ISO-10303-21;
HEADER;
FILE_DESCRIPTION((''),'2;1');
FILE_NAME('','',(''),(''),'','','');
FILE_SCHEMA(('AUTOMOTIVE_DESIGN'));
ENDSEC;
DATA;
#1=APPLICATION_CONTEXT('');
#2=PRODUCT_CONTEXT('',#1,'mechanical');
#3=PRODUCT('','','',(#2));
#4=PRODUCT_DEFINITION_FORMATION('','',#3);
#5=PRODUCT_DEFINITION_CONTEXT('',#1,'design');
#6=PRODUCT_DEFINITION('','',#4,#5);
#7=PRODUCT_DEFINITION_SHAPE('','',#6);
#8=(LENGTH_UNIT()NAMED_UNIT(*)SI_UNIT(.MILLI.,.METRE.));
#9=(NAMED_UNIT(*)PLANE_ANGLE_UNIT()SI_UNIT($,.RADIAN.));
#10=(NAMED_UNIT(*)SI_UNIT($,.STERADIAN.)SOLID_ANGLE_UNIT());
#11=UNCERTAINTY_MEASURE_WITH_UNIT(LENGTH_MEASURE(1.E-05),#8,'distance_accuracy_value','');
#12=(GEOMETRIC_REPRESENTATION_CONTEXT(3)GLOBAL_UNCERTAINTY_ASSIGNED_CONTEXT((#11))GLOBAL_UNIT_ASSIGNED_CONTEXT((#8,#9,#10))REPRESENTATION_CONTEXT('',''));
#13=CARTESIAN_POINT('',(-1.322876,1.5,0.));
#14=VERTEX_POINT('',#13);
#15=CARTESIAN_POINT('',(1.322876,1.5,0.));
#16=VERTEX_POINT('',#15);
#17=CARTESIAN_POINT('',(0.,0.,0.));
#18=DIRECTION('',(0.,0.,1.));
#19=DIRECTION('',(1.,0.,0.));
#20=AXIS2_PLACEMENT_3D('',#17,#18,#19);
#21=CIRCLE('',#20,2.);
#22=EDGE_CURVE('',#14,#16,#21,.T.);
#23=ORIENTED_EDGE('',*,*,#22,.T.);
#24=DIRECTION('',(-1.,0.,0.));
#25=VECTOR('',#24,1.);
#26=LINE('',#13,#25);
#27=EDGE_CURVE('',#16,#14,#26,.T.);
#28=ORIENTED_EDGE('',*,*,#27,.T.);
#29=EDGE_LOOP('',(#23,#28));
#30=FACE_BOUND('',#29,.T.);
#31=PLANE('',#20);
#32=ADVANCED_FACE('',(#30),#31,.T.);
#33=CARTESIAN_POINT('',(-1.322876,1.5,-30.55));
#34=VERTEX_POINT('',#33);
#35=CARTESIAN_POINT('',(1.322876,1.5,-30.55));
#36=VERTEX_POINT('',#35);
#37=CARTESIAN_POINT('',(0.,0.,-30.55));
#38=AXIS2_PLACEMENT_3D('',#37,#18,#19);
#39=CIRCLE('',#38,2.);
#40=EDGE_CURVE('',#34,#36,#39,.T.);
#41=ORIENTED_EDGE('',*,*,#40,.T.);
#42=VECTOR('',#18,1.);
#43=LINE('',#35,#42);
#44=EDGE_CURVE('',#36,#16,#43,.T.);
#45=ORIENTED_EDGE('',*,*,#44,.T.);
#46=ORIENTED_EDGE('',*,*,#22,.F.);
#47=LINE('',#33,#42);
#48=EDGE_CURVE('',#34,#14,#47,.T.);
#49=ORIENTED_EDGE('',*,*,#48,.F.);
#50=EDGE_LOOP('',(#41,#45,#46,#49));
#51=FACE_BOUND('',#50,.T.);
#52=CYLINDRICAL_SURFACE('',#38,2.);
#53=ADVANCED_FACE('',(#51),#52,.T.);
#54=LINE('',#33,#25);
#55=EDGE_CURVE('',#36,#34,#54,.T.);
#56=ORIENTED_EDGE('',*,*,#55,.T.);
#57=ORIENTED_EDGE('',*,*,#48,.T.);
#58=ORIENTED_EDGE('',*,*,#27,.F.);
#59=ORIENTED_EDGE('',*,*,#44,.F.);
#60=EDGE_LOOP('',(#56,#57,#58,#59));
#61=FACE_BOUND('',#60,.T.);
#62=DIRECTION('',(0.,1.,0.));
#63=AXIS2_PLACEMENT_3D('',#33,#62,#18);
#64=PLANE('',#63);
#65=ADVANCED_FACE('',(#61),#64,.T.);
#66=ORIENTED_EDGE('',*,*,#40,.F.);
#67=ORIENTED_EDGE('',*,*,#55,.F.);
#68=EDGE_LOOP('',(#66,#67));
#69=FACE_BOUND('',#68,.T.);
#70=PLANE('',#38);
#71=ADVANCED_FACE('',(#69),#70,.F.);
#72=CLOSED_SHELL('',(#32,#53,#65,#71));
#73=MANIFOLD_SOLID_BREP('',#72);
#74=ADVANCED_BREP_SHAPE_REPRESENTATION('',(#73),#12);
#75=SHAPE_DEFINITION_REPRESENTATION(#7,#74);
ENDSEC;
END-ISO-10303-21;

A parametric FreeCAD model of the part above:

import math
import FreeCAD as App
import Part
import Sketcher

doc = App.newDocument("Part")
body = doc.addObject("PartDesign::Body", "Body")

sketch1 = doc.addObject("Sketcher::SketchObject", "Sketch")
body.addObject(sketch1)
sketch1.AttachmentSupport = (doc.XY_Plane, [""])
sketch1.MapMode = "FlatFace"
sketch1.addGeometry(Part.LineSegment(App.Vector(1.3, 1.5, 0), App.Vector(-1.3, 1.5, 0)), False)
sketch1.addGeometry(Part.ArcOfCircle(Part.Circle(App.Vector(0, 0, 0), App.Vector(0, 0, 1), 2), math.radians(131), math.radians(409)), False)
sketch1.addConstraint(Sketcher.Constraint("Coincident", 0, 1, 1, 2))
sketch1.addConstraint(Sketcher.Constraint("Coincident", 1, 1, 0, 2))
sketch1.addConstraint(Sketcher.Constraint("Horizontal", 0))
sketch1.addConstraint(Sketcher.Constraint("Coincident", 1, 3, -1, 1))
sketch1.addConstraint(Sketcher.Constraint("Radius", 1, 2.0))
sketch1.addConstraint(Sketcher.Constraint("DistanceY", -1, 1, 0, 1, 1.5))
pad1 = doc.addObject("PartDesign::Pad", "Pad")
body.addObject(pad1)
pad1.Profile = sketch1
pad1.Length = 30.55
pad1.Reversed = True

doc.recompute()
